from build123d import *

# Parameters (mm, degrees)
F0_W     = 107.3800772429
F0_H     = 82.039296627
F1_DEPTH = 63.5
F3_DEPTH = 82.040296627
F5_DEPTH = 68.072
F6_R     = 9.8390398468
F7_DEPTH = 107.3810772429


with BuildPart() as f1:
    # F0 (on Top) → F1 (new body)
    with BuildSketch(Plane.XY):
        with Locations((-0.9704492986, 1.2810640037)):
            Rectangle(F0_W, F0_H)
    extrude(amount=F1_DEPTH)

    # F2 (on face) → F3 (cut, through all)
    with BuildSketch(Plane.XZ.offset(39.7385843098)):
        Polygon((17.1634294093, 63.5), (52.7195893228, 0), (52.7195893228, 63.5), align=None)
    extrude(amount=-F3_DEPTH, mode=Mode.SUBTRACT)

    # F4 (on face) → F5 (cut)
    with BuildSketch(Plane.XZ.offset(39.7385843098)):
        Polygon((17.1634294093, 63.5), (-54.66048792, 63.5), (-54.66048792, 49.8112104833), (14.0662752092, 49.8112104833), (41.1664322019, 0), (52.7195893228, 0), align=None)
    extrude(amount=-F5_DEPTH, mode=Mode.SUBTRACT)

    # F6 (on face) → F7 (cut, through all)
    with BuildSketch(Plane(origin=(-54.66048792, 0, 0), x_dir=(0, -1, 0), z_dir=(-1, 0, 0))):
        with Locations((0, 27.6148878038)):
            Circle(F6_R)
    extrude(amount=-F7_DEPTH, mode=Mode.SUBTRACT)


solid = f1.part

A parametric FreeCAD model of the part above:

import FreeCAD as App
import Part
import Sketcher
from FreeCAD import Vector
Q = App.Units.Quantity


def add_polygon(sketch, points):
    """Adds a closed chain of lines whose ends are joined by coincident constraints."""
    first, n = sketch.GeometryCount, len(points)
    for a, b in zip(points, points[1:] + points[:1]):
        sketch.addGeometry(Part.LineSegment(App.Vector(*a, 0), App.Vector(*b, 0)), False)
    for i in range(n):
        sketch.addConstraint(Sketcher.Constraint("Coincident", first + i, 2, first + (i + 1) % n, 1))

doc = App.newDocument("Part")
body = doc.addObject("PartDesign::Body", "Body")

sketch1 = body.newObject("Sketcher::SketchObject", "Sketch")
sketch1.AttachmentSupport = (doc.getObject("XY_Plane"), [""])
sketch1.MapMode = "FlatFace"
add_polygon(sketch1, [(-55, 42), (-55, -40), (53, -40), (53, 42)])
sketch1.addConstraint([
    Sketcher.Constraint("Vertical", 0),
    Sketcher.Constraint("Horizontal", 1),
    Sketcher.Constraint("Vertical", 2),
    Sketcher.Constraint("Horizontal", 3),
    Sketcher.Constraint("DistanceX", 1, 1, 1, 2, 107.380077),
    Sketcher.Constraint("DistanceY", 0, 2, 0, 1, 82.039297),
    Sketcher.Constraint("DistanceX", -1, 1, 1, 2, 52.719589),
    Sketcher.Constraint("DistanceY", 0, 2, -1, 1, 39.738584),
])
pad1 = body.newObject("PartDesign::Pad", "Pad")
pad1.Profile = sketch1
pad1.Length = Q("2.5 in")

sketch2 = body.newObject("Sketcher::SketchObject", "Sketch001")
sketch2.AttachmentSupport = (doc.getObject("XZ_Plane"), [""])
sketch2.MapMode = "FlatFace"
sketch2.AttachmentOffset = App.Placement(Vector(0, 0, 39.738584), App.Rotation())
add_polygon(sketch2, [(17, 64), (53, 0), (53, 64)])
sketch2.addConstraint([
    Sketcher.Constraint("Vertical", 1),
    Sketcher.Constraint("Horizontal", 2),
    Sketcher.Constraint("PointOnObject", 0, 2, -1),
    Sketcher.Constraint("DistanceY", 1, 1, 1, 2, Q("2.5 in")),
    Sketcher.Constraint("DistanceX", 2, 2, 2, 1, 35.55616),
    Sketcher.Constraint("DistanceX", -1, 1, 0, 2, 52.719589),
])
pocket1 = body.newObject("PartDesign::Pocket", "Pocket")
pocket1.Profile = sketch2
pocket1.Type = "ThroughAll"

sketch3 = body.newObject("Sketcher::SketchObject", "Sketch002")
sketch3.AttachmentSupport = (doc.getObject("XZ_Plane"), [""])
sketch3.MapMode = "FlatFace"
sketch3.AttachmentOffset = App.Placement(Vector(0, 0, 39.738584), App.Rotation())
add_polygon(sketch3, [(17, 64), (-55, 64), (-55, 50), (14, 50), (41, 0), (53, 0)])
sketch3.addConstraint([
    Sketcher.Constraint("Horizontal", 0),
    Sketcher.Constraint("Vertical", 1),
    Sketcher.Constraint("Horizontal", 2),
    Sketcher.Constraint("Horizontal", 4),
    Sketcher.Constraint("PointOnObject", 3, 2, -1),
    Sketcher.Constraint("DistanceY", -1, 1, 0, 2, Q("2.5 in")),
    Sketcher.Constraint("DistanceX", 5, 2, 3, 2, Q("0.9450001 in")),
    Sketcher.Constraint("DistanceY", 1, 2, 1, 1, 13.68879),
    Sketcher.Constraint("Distance", 3, 56.706042),
    Sketcher.Constraint("Distance", 5, 72.776992),
    Sketcher.Constraint("DistanceX", 0, 2, 0, 1, 71.823917),
    Sketcher.Constraint("DistanceX", -1, 1, 4, 2, 52.719589),
])
pocket2 = body.newObject("PartDesign::Pocket", "Pocket001")
pocket2.Profile = sketch3
pocket2.Length = Q("2.68 in")

sketch4 = body.newObject("Sketcher::SketchObject", "Sketch003")
sketch4.AttachmentSupport = (doc.getObject("YZ_Plane"), [""])
sketch4.MapMode = "FlatFace"
sketch4.AttachmentOffset = App.Placement(Vector(0, 0, -54.660488), App.Rotation())
sketch4.addGeometry(Part.Circle(Vector(0, 28, 0), Vector(0, 0, 1), 10), False)
sketch4.addConstraint([
    Sketcher.Constraint("PointOnObject", 0, 3, -2),
    Sketcher.Constraint("Diameter", 0, 19.67808),
    Sketcher.Constraint("DistanceY", -1, 1, 0, 3, 27.614888),
])
pocket3 = body.newObject("PartDesign::Pocket", "Pocket002")
pocket3.Profile = sketch4
pocket3.Type = "ThroughAll"
pocket3.Reversed = True

doc.recompute()
